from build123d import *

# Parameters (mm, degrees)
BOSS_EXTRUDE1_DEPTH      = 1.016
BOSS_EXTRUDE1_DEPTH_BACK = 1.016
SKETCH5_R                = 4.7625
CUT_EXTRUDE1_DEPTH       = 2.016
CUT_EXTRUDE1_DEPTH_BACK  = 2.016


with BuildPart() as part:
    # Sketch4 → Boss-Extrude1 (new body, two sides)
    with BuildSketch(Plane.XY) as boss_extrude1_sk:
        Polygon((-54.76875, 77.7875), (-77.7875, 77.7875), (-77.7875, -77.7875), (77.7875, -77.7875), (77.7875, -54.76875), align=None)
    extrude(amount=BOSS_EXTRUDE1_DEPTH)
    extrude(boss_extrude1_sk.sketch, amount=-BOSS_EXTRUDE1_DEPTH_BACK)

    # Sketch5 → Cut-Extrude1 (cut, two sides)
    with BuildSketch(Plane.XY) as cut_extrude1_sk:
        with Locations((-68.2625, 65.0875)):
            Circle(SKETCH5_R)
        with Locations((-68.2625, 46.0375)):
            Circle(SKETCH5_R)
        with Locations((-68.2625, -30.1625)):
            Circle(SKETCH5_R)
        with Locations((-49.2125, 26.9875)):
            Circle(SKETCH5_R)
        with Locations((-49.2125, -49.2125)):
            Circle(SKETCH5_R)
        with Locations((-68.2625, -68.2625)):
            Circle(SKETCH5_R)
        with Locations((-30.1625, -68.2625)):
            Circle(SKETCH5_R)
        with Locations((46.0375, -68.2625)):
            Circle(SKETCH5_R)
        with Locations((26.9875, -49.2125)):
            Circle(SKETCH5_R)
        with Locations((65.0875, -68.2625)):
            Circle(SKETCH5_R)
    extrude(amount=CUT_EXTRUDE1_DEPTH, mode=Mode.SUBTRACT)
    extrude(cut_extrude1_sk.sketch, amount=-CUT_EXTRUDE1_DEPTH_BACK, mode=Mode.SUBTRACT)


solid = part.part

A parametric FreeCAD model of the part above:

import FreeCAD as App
import Part
import Sketcher
from FreeCAD import Vector
Q = App.Units.Quantity


def add_polygon(sketch, points):
    """Adds a closed chain of lines whose ends are joined by coincident constraints."""
    first, n = sketch.GeometryCount, len(points)
    for a, b in zip(points, points[1:] + points[:1]):
        sketch.addGeometry(Part.LineSegment(App.Vector(*a, 0), App.Vector(*b, 0)), False)
    for i in range(n):
        sketch.addConstraint(Sketcher.Constraint("Coincident", first + i, 2, first + (i + 1) % n, 1))

doc = App.newDocument("Part")
body = doc.addObject("PartDesign::Body", "Body")

sketch1 = body.newObject("Sketcher::SketchObject", "Sketch")
sketch1.AttachmentSupport = (doc.getObject("XY_Plane"), [""])
sketch1.MapMode = "FlatFace"
add_polygon(sketch1, [(-55, 78), (-78, 78), (-78, -78), (78, -78), (78, -55)])
sketch1.addConstraint([
    Sketcher.Constraint("Horizontal", 0),
    Sketcher.Constraint("Vertical", 1),
    Sketcher.Constraint("Horizontal", 2),
    Sketcher.Constraint("Vertical", 3),
    Sketcher.Constraint("Symmetric", 0, 2, 2, 2, -1, 1),
    Sketcher.Constraint("Equal", 2, 1),
    Sketcher.Constraint("Equal", 0, 3),
    Sketcher.Constraint("DistanceX", 0, 2, 0, 1, Q("0.90625 in")),
    Sketcher.Constraint("DistanceX", 2, 1, 2, 2, Q("6.125 in")),
])
pad1 = body.newObject("PartDesign::Pad", "Pad")
pad1.Profile = sketch1
pad1.Type = "TwoLengths"
pad1.Length = Q("0.04 in")
pad1.Length2 = Q("0.04 in")

sketch2 = body.newObject("Sketcher::SketchObject", "Sketch001")
sketch2.AttachmentSupport = (doc.getObject("XY_Plane"), [""])
sketch2.MapMode = "FlatFace"
sketch2.addGeometry([
    Part.Circle(Vector(-68.3, 65.1, 0), Vector(0, 0, 1), 4.8),
    Part.Circle(Vector(-68.3, 46, 0), Vector(0, 0, 1), 4.8),
    Part.Circle(Vector(-68.3, -30.2, 0), Vector(0, 0, 1), 4.8),
    Part.Circle(Vector(-49.2, 27, 0), Vector(0, 0, 1), 4.8),
    Part.Circle(Vector(-49.2, -49.2, 0), Vector(0, 0, 1), 4.8),
    Part.Circle(Vector(-68.3, -68.3, 0), Vector(0, 0, 1), 4.8),
    Part.Circle(Vector(-30.2, -68.3, 0), Vector(0, 0, 1), 4.8),
    Part.Circle(Vector(46, -68.3, 0), Vector(0, 0, 1), 4.8),
    Part.Circle(Vector(27, -49.2, 0), Vector(0, 0, 1), 4.8),
    Part.Circle(Vector(65.1, -68.3, 0), Vector(0, 0, 1), 4.8),
], False)
sketch2.addConstraint([
    Sketcher.Constraint("Equal", 0, 1),
    Sketcher.Constraint("Equal", 1, 2),
    Sketcher.Constraint("Equal", 2, 3),
    Sketcher.Constraint("Equal", 3, 4),
    Sketcher.Constraint("Equal", 4, 5),
    Sketcher.Constraint("Equal", 5, 6),
    Sketcher.Constraint("Equal", 6, 7),
    Sketcher.Constraint("Equal", 7, 8),
    Sketcher.Constraint("Equal", 8, 9),
    Sketcher.Constraint("Horizontal", 5, 3, 6, 3),
    Sketcher.Constraint("Horizontal", 6, 3, 7, 3),
    Sketcher.Constraint("Horizontal", 4, 3, 8, 3),
    Sketcher.Constraint("Horizontal", 7, 3, 9, 3),
    Sketcher.Constraint("Vertical", 0, 3, 1, 3),
    Sketcher.Constraint("Vertical", 1, 3, 2, 3),
    Sketcher.Constraint("Vertical", 3, 3, 4, 3),
    Sketcher.Constraint("Vertical", 2, 3, 5, 3),
    Sketcher.Constraint("Diameter", 0, Q("0.375 in")),
    Sketcher.Constraint("DistanceY", 2, 3, 1, 3, Q("3 in")),
    Sketcher.Constraint("DistanceY", 4, 3, 3, 3, Q("3 in")),
    Sketcher.Constraint("DistanceX", 6, 3, 7, 3, Q("3 in")),
    Sketcher.Constraint("DistanceX", 4, 3, 8, 3, Q("3 in")),
    Sketcher.Constraint("DistanceY", 3, 3, 0, 3, Q("1.5 in")),
    Sketcher.Constraint("DistanceY", 5, 3, 2, 3, Q("1.5 in")),
    Sketcher.Constraint("DistanceX", 5, 3, 6, 3, Q("1.5 in")),
    Sketcher.Constraint("DistanceX", 8, 3, 9, 3, Q("1.5 in")),
    Sketcher.Constraint("DistanceY", 1, 3, 0, 3, Q("0.75 in")),
    Sketcher.Constraint("DistanceX", 1, 3, 3, 3, Q("0.75 in")),
    Sketcher.Constraint("DistanceX", 0, 3, -1, 1, Q("2.6875 in")),
    Sketcher.Constraint("DistanceY", -1, 1, 0, 3, Q("2.5625 in")),
])
pocket1 = body.newObject("PartDesign::Pocket", "Pocket")
pocket1.Profile = sketch2
pocket1.Type = "ThroughAll"
pocket1.Midplane = True

doc.recompute()
